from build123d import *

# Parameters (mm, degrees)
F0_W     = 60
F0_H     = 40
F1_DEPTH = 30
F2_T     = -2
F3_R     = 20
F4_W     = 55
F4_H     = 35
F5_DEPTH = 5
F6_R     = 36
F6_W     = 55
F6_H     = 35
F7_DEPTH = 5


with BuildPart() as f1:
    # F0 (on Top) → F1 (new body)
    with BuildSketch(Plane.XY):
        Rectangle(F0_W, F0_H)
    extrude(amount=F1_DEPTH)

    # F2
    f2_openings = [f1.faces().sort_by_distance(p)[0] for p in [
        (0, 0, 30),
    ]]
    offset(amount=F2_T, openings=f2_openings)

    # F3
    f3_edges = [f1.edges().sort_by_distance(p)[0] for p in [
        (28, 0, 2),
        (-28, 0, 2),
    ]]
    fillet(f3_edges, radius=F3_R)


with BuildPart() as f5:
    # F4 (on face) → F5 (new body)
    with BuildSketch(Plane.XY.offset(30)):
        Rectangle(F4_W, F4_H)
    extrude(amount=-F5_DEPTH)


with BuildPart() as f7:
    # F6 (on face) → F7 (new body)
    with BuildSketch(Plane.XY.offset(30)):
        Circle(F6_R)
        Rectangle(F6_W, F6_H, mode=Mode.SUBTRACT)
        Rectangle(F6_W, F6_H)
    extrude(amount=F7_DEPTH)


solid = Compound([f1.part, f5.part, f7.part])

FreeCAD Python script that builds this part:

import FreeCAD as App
import Part
import Sketcher
from FreeCAD import Vector
Q = App.Units.Quantity


def edges_at(feature, points):
    """Names of the edges that pass closest to the given points."""
    edges = feature.Shape.Edges
    near = lambda p: min(range(len(edges)), key=lambda i: edges[i].distToShape(Part.Vertex(*p))[0])
    return sorted({f"Edge{near(p) + 1}" for p in points})


def faces_at(feature, points):
    """Names of the faces that lie closest to the given points."""
    faces = feature.Shape.Faces
    near = lambda p: min(range(len(faces)), key=lambda i: faces[i].distToShape(Part.Vertex(*p))[0])
    return sorted({f"Face{near(p) + 1}" for p in points})


def add_polygon(sketch, points):
    """Adds a closed chain of lines whose ends are joined by coincident constraints."""
    first, n = sketch.GeometryCount, len(points)
    for a, b in zip(points, points[1:] + points[:1]):
        sketch.addGeometry(Part.LineSegment(App.Vector(*a, 0), App.Vector(*b, 0)), False)
    for i in range(n):
        sketch.addConstraint(Sketcher.Constraint("Coincident", first + i, 2, first + (i + 1) % n, 1))

doc = App.newDocument("Part")
body = doc.addObject("PartDesign::Body", "Body")

# Sketch on XY plane
sketch1 = body.newObject("Sketcher::SketchObject", "Sketch")
sketch1.AttachmentSupport = (doc.getObject("XY_Plane"), [""])
sketch1.MapMode = "FlatFace"
add_polygon(sketch1, [(-30, 20), (-30, -20), (30, -20), (30, 20)])  # lines 0-3
sketch1.addConstraint([
    Sketcher.Constraint("Vertical", 0),
    Sketcher.Constraint("Horizontal", 1),
    Sketcher.Constraint("Vertical", 2),
    Sketcher.Constraint("Horizontal", 3),
    Sketcher.Constraint("Symmetric", 0, 2, 2, 2, -1, 1),
    Sketcher.Constraint("DistanceX", 1, 1, 1, 2, Q("60 mm")),
    Sketcher.Constraint("DistanceY", 0, 2, 0, 1, Q("40 mm")),
])
pad1 = body.newObject("PartDesign::Pad", "Pad")
pad1.Profile = sketch1
pad1.Length = 30
doc.recompute()

thickness = body.newObject("PartDesign::Thickness", "Thickness")
thickness.Base = (pad1, faces_at(pad1, [(0, 0, 30)]))
thickness.Value = 2
thickness.Reversed = True
thickness.Join = "Arc"
doc.recompute()

fillet = body.newObject("PartDesign::Fillet", "Fillet")
fillet.Base = (thickness, edges_at(thickness, [(28, 0, 2), (-28, 0, 2)]))
fillet.Radius = 20
body2 = doc.addObject("PartDesign::Body", "Body001")

# Sketch on XY plane
sketch2 = body2.newObject("Sketcher::SketchObject", "Sketch001")
sketch2.AttachmentSupport = (doc.getObject("XY_Plane001"), [""])
sketch2.MapMode = "FlatFace"
sketch2.AttachmentOffset = App.Placement(Vector(0, 0, 30), App.Rotation())
add_polygon(sketch2, [(-28, 18), (-28, -18), (28, -18), (28, 18)])  # lines 0-3
sketch2.addConstraint([
    Sketcher.Constraint("Vertical", 0),
    Sketcher.Constraint("Horizontal", 1),
    Sketcher.Constraint("Vertical", 2),
    Sketcher.Constraint("Horizontal", 3),
    Sketcher.Constraint("Symmetric", 0, 2, 2, 2, -1, 1),
    Sketcher.Constraint("DistanceX", 1, 1, 1, 2, Q("55 mm")),
    Sketcher.Constraint("DistanceY", 0, 2, 0, 1, Q("35 mm")),
])
pad2 = body2.newObject("PartDesign::Pad", "Pad001")
pad2.Profile = sketch2
pad2.Length = 5
pad2.Reversed = True
body3 = doc.addObject("PartDesign::Body", "Body002")

# Sketch on XY plane
sketch3 = body3.newObject("Sketcher::SketchObject", "Sketch002")
sketch3.AttachmentSupport = (doc.getObject("XY_Plane002"), [""])
sketch3.MapMode = "FlatFace"
sketch3.AttachmentOffset = App.Placement(Vector(0, 0, 30), App.Rotation())
sketch3.addGeometry(Part.Circle(Vector(0, 0, 0), Vector(0, 0, 1), 36), False)
sketch3.addConstraint([
    Sketcher.Constraint("Coincident", 0, 3, -1, 1),
    Sketcher.Constraint("Diameter", 0, Q("72 mm")),
])
pad3 = body3.newObject("PartDesign::Pad", "Pad002")
pad3.Profile = sketch3
pad3.Length = 5

doc.recompute()
